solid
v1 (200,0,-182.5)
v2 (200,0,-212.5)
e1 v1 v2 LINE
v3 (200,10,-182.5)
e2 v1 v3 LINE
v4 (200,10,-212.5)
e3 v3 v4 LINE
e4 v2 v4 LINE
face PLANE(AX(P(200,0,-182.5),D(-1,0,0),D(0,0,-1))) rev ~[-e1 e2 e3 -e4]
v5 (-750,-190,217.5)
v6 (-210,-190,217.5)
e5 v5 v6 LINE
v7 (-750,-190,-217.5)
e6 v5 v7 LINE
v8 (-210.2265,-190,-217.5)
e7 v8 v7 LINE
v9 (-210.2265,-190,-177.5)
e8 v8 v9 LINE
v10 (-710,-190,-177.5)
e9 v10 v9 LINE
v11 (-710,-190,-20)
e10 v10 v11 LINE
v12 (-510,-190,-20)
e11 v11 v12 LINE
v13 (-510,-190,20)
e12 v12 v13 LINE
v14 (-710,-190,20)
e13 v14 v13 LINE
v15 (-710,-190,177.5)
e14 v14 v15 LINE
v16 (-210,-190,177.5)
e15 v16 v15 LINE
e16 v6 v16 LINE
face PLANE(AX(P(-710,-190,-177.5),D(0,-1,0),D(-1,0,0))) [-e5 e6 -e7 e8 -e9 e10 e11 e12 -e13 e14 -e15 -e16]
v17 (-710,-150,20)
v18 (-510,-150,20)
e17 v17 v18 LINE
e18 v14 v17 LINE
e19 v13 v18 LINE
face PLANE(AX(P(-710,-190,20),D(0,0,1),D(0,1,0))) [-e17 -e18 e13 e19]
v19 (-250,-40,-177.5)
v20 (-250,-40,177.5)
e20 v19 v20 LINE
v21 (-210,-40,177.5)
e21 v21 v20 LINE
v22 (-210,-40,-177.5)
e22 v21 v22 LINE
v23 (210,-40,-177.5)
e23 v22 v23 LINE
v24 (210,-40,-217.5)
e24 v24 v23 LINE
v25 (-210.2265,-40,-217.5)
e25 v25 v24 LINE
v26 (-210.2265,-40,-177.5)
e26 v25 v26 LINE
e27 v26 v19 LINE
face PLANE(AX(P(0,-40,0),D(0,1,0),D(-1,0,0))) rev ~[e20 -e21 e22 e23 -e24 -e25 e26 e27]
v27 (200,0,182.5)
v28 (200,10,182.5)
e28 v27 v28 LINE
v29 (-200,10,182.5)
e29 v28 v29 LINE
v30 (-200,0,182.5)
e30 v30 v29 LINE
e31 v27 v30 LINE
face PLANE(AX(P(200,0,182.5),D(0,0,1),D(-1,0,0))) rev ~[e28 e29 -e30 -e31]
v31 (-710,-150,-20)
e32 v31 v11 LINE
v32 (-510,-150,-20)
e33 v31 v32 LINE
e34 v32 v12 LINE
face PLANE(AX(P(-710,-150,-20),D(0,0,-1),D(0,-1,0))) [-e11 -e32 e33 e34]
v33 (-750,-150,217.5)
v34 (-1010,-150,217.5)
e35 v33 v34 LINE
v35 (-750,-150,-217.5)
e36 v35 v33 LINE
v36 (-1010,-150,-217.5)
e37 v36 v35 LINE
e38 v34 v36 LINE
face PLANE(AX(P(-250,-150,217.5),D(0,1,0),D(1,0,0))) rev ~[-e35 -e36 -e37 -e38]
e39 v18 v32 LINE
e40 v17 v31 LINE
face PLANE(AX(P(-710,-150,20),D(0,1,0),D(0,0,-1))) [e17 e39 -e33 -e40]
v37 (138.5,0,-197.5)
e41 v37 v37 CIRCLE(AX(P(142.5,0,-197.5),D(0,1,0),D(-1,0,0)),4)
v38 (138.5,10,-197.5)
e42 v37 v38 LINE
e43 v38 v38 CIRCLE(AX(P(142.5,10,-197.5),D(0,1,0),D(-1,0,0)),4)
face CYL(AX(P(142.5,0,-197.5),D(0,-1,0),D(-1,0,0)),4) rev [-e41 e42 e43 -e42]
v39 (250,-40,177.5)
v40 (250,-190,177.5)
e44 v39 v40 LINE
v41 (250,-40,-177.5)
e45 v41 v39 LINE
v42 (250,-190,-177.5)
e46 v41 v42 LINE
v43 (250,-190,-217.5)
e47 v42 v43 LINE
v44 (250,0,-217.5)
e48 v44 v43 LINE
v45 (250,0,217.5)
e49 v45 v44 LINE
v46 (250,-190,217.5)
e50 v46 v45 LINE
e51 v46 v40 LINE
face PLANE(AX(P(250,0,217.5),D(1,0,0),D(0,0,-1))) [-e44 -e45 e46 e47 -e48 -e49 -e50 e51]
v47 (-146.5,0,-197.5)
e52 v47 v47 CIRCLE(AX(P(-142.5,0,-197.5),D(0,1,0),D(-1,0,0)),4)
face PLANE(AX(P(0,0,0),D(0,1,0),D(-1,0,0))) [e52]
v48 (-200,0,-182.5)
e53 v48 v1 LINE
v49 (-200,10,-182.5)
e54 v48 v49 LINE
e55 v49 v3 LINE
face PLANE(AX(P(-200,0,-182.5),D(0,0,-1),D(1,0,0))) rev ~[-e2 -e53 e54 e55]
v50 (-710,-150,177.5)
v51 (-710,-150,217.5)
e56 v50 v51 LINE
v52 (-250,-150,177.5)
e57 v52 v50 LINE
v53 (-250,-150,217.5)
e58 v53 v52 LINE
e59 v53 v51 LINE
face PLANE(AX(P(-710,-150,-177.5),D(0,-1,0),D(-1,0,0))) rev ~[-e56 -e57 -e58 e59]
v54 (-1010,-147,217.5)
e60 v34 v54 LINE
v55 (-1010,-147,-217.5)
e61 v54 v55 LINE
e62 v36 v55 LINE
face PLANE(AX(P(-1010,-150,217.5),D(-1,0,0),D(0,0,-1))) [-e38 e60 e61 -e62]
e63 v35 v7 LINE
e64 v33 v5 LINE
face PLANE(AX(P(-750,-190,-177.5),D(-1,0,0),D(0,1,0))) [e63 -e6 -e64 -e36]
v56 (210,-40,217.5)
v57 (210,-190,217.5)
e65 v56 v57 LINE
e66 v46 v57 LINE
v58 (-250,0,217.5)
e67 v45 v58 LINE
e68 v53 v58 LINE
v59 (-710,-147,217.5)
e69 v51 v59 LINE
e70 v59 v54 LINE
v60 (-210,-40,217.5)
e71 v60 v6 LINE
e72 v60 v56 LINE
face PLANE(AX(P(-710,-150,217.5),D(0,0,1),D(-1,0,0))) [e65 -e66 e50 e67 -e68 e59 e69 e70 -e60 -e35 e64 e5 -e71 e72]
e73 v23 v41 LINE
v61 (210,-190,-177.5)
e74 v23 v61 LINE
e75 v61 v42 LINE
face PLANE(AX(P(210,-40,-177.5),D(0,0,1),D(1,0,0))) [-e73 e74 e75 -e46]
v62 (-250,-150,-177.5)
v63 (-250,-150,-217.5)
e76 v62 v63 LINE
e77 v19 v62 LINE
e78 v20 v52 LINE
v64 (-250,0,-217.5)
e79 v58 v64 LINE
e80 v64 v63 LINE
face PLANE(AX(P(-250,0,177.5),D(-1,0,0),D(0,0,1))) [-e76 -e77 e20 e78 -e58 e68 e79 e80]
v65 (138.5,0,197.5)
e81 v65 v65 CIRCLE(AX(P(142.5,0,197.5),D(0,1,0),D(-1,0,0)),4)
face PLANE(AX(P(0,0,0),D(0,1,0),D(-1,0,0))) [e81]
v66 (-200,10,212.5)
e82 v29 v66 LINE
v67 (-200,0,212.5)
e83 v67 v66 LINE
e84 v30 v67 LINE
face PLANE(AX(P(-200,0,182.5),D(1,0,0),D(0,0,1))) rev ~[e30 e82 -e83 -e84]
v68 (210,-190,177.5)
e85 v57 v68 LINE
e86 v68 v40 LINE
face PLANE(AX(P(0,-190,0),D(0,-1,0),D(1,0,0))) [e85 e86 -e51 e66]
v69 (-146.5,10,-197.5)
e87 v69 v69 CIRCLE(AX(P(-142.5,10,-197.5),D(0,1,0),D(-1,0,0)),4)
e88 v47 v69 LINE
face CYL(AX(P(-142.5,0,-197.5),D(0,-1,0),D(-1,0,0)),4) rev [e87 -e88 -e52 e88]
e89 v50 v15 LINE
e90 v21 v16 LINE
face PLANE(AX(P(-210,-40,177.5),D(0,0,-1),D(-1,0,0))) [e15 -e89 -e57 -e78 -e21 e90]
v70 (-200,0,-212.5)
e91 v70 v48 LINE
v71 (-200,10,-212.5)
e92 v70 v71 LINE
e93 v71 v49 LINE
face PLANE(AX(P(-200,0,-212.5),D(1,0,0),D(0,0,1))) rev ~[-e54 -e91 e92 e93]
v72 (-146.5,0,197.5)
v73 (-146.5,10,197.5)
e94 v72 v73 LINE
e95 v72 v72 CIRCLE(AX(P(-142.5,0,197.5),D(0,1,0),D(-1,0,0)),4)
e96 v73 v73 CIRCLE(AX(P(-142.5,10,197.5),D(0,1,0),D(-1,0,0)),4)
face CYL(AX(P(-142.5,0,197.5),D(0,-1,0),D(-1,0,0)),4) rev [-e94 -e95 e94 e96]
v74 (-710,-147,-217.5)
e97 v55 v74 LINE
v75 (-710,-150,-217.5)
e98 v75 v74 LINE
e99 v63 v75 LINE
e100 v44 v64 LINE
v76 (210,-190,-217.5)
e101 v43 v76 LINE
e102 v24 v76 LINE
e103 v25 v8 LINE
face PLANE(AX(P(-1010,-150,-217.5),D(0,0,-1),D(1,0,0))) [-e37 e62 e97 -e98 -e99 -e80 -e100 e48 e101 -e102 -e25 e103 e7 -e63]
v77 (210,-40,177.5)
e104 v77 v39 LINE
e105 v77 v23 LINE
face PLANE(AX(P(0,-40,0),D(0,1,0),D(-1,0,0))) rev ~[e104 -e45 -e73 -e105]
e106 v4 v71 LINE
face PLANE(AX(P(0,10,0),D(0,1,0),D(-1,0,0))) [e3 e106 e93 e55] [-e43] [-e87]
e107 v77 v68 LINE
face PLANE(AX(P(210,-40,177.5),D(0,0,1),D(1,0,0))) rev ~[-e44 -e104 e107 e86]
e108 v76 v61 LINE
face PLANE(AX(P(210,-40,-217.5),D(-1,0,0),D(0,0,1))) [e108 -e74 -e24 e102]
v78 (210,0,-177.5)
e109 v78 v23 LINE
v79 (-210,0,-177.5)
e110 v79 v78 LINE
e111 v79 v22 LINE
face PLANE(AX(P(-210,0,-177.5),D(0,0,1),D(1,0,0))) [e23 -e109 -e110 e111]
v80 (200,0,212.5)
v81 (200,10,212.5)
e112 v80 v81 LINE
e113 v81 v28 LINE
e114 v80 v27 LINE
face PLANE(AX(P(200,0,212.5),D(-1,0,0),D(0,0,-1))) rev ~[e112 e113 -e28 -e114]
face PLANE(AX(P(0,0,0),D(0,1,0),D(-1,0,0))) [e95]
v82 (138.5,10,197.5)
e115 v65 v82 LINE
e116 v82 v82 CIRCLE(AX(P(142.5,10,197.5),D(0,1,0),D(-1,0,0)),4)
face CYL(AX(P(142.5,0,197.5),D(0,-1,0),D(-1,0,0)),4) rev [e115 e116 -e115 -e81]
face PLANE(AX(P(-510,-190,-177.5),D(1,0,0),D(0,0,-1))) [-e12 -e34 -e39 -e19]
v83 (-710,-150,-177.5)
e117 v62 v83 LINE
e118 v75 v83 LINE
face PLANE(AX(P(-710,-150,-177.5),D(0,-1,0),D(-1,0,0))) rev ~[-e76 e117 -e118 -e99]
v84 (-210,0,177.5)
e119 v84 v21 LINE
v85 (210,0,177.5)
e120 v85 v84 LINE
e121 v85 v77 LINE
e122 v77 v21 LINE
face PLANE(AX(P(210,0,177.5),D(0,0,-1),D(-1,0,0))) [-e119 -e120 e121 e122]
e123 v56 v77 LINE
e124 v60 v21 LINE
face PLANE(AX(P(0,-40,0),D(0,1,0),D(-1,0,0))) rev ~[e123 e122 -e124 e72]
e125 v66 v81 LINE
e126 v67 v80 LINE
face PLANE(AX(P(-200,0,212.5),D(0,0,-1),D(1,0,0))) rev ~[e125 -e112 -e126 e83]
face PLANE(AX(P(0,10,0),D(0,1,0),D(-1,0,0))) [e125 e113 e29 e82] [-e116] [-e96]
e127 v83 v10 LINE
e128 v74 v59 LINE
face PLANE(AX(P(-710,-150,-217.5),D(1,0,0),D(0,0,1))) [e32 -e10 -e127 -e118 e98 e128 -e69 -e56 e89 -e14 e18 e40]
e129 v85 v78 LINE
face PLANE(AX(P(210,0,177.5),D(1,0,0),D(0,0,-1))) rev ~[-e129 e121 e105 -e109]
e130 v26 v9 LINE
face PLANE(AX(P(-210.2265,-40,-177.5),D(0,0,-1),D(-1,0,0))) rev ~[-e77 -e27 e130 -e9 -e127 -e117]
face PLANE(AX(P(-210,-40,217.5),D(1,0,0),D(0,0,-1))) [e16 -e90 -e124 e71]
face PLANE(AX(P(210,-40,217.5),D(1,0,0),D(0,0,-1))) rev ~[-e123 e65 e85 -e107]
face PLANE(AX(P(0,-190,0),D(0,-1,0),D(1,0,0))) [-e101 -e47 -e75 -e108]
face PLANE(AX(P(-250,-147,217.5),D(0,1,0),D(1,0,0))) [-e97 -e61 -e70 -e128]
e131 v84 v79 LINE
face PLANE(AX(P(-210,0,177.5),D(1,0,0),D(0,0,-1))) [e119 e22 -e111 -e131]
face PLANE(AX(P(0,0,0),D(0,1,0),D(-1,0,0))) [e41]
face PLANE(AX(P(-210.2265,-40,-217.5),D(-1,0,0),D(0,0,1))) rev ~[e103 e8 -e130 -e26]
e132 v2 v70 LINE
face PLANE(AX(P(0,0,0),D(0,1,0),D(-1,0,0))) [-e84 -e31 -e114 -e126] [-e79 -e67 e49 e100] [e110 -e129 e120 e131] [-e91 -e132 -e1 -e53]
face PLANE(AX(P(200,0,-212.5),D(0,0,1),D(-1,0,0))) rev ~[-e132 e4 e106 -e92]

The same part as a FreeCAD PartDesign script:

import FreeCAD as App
import Part
import Sketcher

V = App.Vector


def add_polygon(sketch, points):
    """Adds a closed chain of lines whose ends are joined by coincident constraints."""
    first, n = sketch.GeometryCount, len(points)
    for a, b in zip(points, points[1:] + points[:1]):
        sketch.addGeometry(Part.LineSegment(App.Vector(*a, 0), App.Vector(*b, 0)), False)
    for i in range(n):
        sketch.addConstraint(Sketcher.Constraint("Coincident", first + i, 2, first + (i + 1) % n, 1))

doc = App.newDocument("Part")
body = doc.addObject("PartDesign::Body", "Body")

# Sketch on XZ plane
sketch1 = body.newObject("Sketcher::SketchObject", "Sketch")
sketch1.AttachmentSupport = (doc.getObject("XZ_Plane"), [""])
sketch1.MapMode = "FlatFace"
add_polygon(sketch1, [(-250, 218), (250, 218), (250, -218), (-250, -218)])  # lines 0-3
add_polygon(sketch1, [(-210, 178), (-210, -178), (210, -178), (210, 178)])  # lines 4-7
sketch1.addConstraint([
    Sketcher.Constraint("Horizontal", 0),
    Sketcher.Constraint("Vertical", 1),
    Sketcher.Constraint("Horizontal", 2),
    Sketcher.Constraint("Vertical", 3),
    Sketcher.Constraint("Vertical", 4),
    Sketcher.Constraint("Horizontal", 5),
    Sketcher.Constraint("Vertical", 6),
    Sketcher.Constraint("Horizontal", 7),
    Sketcher.Constraint("Symmetric", 0, 2, 2, 2, -1, 1),
    Sketcher.Constraint("Symmetric", 4, 2, 6, 2, -1, 1),
    Sketcher.Constraint("DistanceX", 0, 1, 0, 2, 500.0),
    Sketcher.Constraint("DistanceX", 2, 2, 4, 2, 40.0),
    Sketcher.Constraint("DistanceY", 2, 2, 4, 2, 40.0),
    Sketcher.Constraint("DistanceY", 1, 2, 1, 1, 435.0),
])
pad1 = body.newObject("PartDesign::Pad", "Pad")
pad1.Profile = sketch1
pad1.Length = 40

# Sketch on XZ plane
sketch2 = body.newObject("Sketcher::SketchObject", "Sketch001")
sketch2.AttachmentSupport = (doc.getObject("XZ_Plane"), [""])
sketch2.MapMode = "FlatFace"
add_polygon(sketch2, [(-200, 182.5), (-200, 212.5), (200, 212.5), (200, 182.5)])  # lines 0-3
sketch2.addGeometry(Part.Circle(V(142.5, 197.5, 0), V(0, 0, 1), 4), False)  # 4
sketch2.addGeometry(Part.Circle(V(-142.5, 197.5, 0), V(0, 0, 1), 4), False)  # 5
add_polygon(sketch2, [(-200, -212.5), (-200, -182.5), (200, -182.5), (200, -212.5)])  # lines 6-9
sketch2.addGeometry(Part.Circle(V(142.5, -197.5, 0), V(0, 0, 1), 4), False)  # 10
sketch2.addGeometry(Part.Circle(V(-142.5, -197.5, 0), V(0, 0, 1), 4), False)  # 11
sketch2.addConstraint([
    Sketcher.Constraint("Vertical", 0),
    Sketcher.Constraint("Horizontal", 1),
    Sketcher.Constraint("Vertical", 2),
    Sketcher.Constraint("Horizontal", 3),
    Sketcher.Constraint("Vertical", 6),
    Sketcher.Constraint("Horizontal", 7),
    Sketcher.Constraint("Vertical", 8),
    Sketcher.Constraint("Horizontal", 9),
    Sketcher.Constraint("Equal", 4, 5),
    Sketcher.Constraint("Equal", 5, 10),
    Sketcher.Constraint("Equal", 10, 11),
    Sketcher.Constraint("Symmetric", 5, 3, 10, 3, -1, 1),
    Sketcher.Constraint("Symmetric", 4, 3, 11, 3, -1, 1),
    Sketcher.Constraint("Symmetric", 2, 2, 6, 2, -1, 1),
    Sketcher.Constraint("Symmetric", 0, 2, 8, 2, -1, 1),
    Sketcher.Constraint("Symmetric", 4, 3, 5, 3, -2),
    Sketcher.Constraint("Vertical", 3, 2, 6, 2),
    Sketcher.Constraint("Diameter", 4, 8.0),
    Sketcher.Constraint("DistanceX", 1, 1, 1, 2, 400.0),
    Sketcher.Constraint("DistanceY", 0, 1, 0, 2, 30.0),
    Sketcher.Constraint("DistanceX", 5, 3, 4, 3, 285.0),
    Sketcher.Constraint("DistanceY", 10, 3, 4, 3, 395.0),
    Sketcher.Constraint("DistanceY", 6, 2, 0, 2, 395.0),
])
pad2 = body.newObject("PartDesign::Pad", "Pad001")
pad2.Profile = sketch2
pad2.Length = 10
pad2.Reversed = True

# Sketch on XZ plane
sketch3 = body.newObject("Sketcher::SketchObject", "Sketch002")
sketch3.AttachmentSupport = (doc.getObject("XZ_Plane"), [""])
sketch3.MapMode = "FlatFace"
sketch3.AttachmentOffset = App.Placement(V(0, 0, 40), App.Rotation())
add_polygon(sketch3, [(-250, 218), (-250, 178), (-210, 178), (-210, 218)])  # lines 0-3
add_polygon(sketch3, [(-250, -218), (-210, -218), (-210, -178), (-250, -178)])  # lines 4-7
add_polygon(sketch3, [(250, 178), (250, 218), (210, 218), (210, 178)])  # lines 8-11
add_polygon(sketch3, [(250, -218), (250, -178), (210, -178), (210, -218)])  # lines 12-15
sketch3.addConstraint([
    Sketcher.Constraint("Vertical", 0),
    Sketcher.Constraint("Horizontal", 1),
    Sketcher.Constraint("Vertical", 2),
    Sketcher.Constraint("Horizontal", 3),
    Sketcher.Constraint("Horizontal", 4),
    Sketcher.Constraint("Vertical", 5),
    Sketcher.Constraint("Horizontal", 6),
    Sketcher.Constraint("Vertical", 7),
    Sketcher.Constraint("Vertical", 8),
    Sketcher.Constraint("Horizontal", 9),
    Sketcher.Constraint("Vertical", 10),
    Sketcher.Constraint("Horizontal", 11),
    Sketcher.Constraint("Vertical", 12),
    Sketcher.Constraint("Horizontal", 13),
    Sketcher.Constraint("Vertical", 14),
    Sketcher.Constraint("Horizontal", 15),
    Sketcher.Constraint("Symmetric", 7, 2, 8, 2, -1, 1),
    Sketcher.Constraint("Symmetric", 0, 2, 12, 2, -1, 1),
    Sketcher.Constraint("Symmetric", 2, 2, 14, 2, -1, 1),
    Sketcher.Constraint("Symmetric", 3, 2, 8, 2, -2),
    Sketcher.Constraint("Symmetric", 1, 2, 10, 2, -2),
    Sketcher.Constraint("Horizontal", 6, 2, 12, 2),
    Sketcher.Constraint("Equal", 15, 0),
    Sketcher.Constraint("DistanceX", 1, 1, 1, 2, 40.0),
    Sketcher.Constraint("DistanceX", 0, 2, -1, 1, 250.0),
    Sketcher.Constraint("DistanceY", 4, 2, 1, 2, 395.0),
    Sketcher.Constraint("DistanceX", 4, 1, 4, 2, 39.7735),
])
pad3 = body.newObject("PartDesign::Pad", "Pad002")
pad3.Profile = sketch3
pad3.Length = 150

# Sketch on YZ plane
sketch4 = body.newObject("Sketcher::SketchObject", "Sketch003")
sketch4.AttachmentSupport = (doc.getObject("YZ_Plane"), [""])
sketch4.MapMode = "FlatFace"
sketch4.AttachmentOffset = App.Placement(V(0, 0, -250), App.Rotation())
add_polygon(sketch4, [(-150, -178), (-150, -218), (-190, -218), (-190, -178)])  # lines 0-3
add_polygon(sketch4, [(-150, 218), (-150, 178), (-190, 178), (-190, 218)])  # lines 4-7
sketch4.addConstraint([
    Sketcher.Constraint("Vertical", 0),
    Sketcher.Constraint("Horizontal", 1),
    Sketcher.Constraint("Vertical", 2),
    Sketcher.Constraint("Horizontal", 3),
    Sketcher.Constraint("Vertical", 4),
    Sketcher.Constraint("Horizontal", 5),
    Sketcher.Constraint("Vertical", 6),
    Sketcher.Constraint("Horizontal", 7),
    Sketcher.Constraint("Symmetric", 3, 2, 4, 2, -1),
    Sketcher.Constraint("Symmetric", 1, 2, 6, 2, -1),
    Sketcher.Constraint("Equal", 7, 0),
    Sketcher.Constraint("DistanceX", 1, 2, 1, 1, 40.0),
    Sketcher.Constraint("DistanceX", 0, 2, -1, 1, 150.0),
    Sketcher.Constraint("DistanceY", 3, 2, 4, 2, 355.0),
])
pad4 = body.newObject("PartDesign::Pad", "Pad003")
pad4.Profile = sketch4
pad4.Length = 500
pad4.Reversed = True

# Sketch on XY plane
sketch5 = body.newObject("Sketcher::SketchObject", "Sketch004")
sketch5.AttachmentSupport = (doc.getObject("XY_Plane"), [""])
sketch5.MapMode = "FlatFace"
sketch5.AttachmentOffset = App.Placement(V(0, 0, -177.5), App.Rotation())
add_polygon(sketch5, [(-710, -190), (-710, -150), (-750, -150), (-750, -190)])  # lines 0-3
sketch5.addConstraint([
    Sketcher.Constraint("Vertical", 0),
    Sketcher.Constraint("Horizontal", 1),
    Sketcher.Constraint("Vertical", 2),
    Sketcher.Constraint("Horizontal", 3),
    Sketcher.Constraint("Equal", 3, 0),
    Sketcher.Constraint("DistanceX", 1, 2, 1, 1, 40.0),
    Sketcher.Constraint("DistanceX", 0, 2, -1, 1, 710.0),
    Sketcher.Constraint("DistanceY", 0, 2, -1, 1, 150.0),
])
pad5 = body.newObject("PartDesign::Pad", "Pad004")
pad5.Profile = sketch5
pad5.Length = 355

# Sketch on XZ plane
sketch6 = body.newObject("Sketcher::SketchObject", "Sketch005")
sketch6.AttachmentSupport = (doc.getObject("XZ_Plane"), [""])
sketch6.MapMode = "FlatFace"
sketch6.AttachmentOffset = App.Placement(V(0, 0, 150), App.Rotation())
add_polygon(sketch6, [(-1010, 218), (-710, 218), (-710, -218), (-1010, -218)])  # lines 0-3
sketch6.addConstraint([
    Sketcher.Constraint("Horizontal", 0),
    Sketcher.Constraint("Vertical", 1),
    Sketcher.Constraint("Horizontal", 2),
    Sketcher.Constraint("Vertical", 3),
    Sketcher.Constraint("DistanceX", 0, 1, 0, 2, 300.0),
    Sketcher.Constraint("DistanceY", 1, 2, 1, 1, 435.0),
    Sketcher.Constraint("DistanceX", 0, 2, -1, 1, 710.0),
    Sketcher.Constraint("DistanceY", -1, 1, 0, 2, 217.5),
])
pad6 = body.newObject("PartDesign::Pad", "Pad005")
pad6.Profile = sketch6
pad6.Length = 3
pad6.Reversed = True

# Sketch on YZ plane
sketch7 = body.newObject("Sketcher::SketchObject", "Sketch006")
sketch7.AttachmentSupport = (doc.getObject("YZ_Plane"), [""])
sketch7.MapMode = "FlatFace"
sketch7.AttachmentOffset = App.Placement(V(0, 0, -710), App.Rotation())
add_polygon(sketch7, [(-150, -20), (-150, 20), (-190, 20), (-190, -20)])  # lines 0-3
sketch7.addConstraint([
    Sketcher.Constraint("Vertical", 0),
    Sketcher.Constraint("Horizontal", 1),
    Sketcher.Constraint("Vertical", 2),
    Sketcher.Constraint("Horizontal", 3),
    Sketcher.Constraint("Equal", 3, 0),
    Sketcher.Constraint("DistanceX", 1, 2, 1, 1, 40.0),
    Sketcher.Constraint("DistanceX", 0, 2, -1, 1, 150.0),
    Sketcher.Constraint("DistanceY", -1, 1, 0, 2, 20.0),
])
pad7 = body.newObject("PartDesign::Pad", "Pad006")
pad7.Profile = sketch7
pad7.Length = 200

doc.recompute()
